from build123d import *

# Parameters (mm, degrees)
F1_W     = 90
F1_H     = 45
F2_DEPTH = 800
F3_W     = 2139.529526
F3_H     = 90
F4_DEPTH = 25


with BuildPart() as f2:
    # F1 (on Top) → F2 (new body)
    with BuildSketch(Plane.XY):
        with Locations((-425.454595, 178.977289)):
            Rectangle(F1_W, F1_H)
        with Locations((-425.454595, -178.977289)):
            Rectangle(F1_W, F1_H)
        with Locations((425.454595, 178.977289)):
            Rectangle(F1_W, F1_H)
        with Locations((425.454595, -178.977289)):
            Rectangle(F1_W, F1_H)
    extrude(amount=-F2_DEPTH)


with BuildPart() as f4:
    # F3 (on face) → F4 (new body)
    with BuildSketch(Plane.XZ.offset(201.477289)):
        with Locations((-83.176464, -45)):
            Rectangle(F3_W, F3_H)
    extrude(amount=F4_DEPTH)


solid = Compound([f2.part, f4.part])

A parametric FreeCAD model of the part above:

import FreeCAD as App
import Part
import Sketcher
from FreeCAD import Vector
Q = App.Units.Quantity


def add_polygon(sketch, points):
    """Adds a closed chain of lines whose ends are joined by coincident constraints."""
    first, n = sketch.GeometryCount, len(points)
    for a, b in zip(points, points[1:] + points[:1]):
        sketch.addGeometry(Part.LineSegment(App.Vector(*a, 0), App.Vector(*b, 0)), False)
    for i in range(n):
        sketch.addConstraint(Sketcher.Constraint("Coincident", first + i, 2, first + (i + 1) % n, 1))

doc = App.newDocument("Part")
body = doc.addObject("PartDesign::Body", "Body")
body.AllowCompound = True

sketch1 = body.newObject("Sketcher::SketchObject", "Sketch")
sketch1.AttachmentSupport = (doc.getObject("XY_Plane"), [""])
sketch1.MapMode = "FlatFace"
add_polygon(sketch1, [(-470, 201), (-470, 156), (-380, 156), (-380, 201)])
add_polygon(sketch1, [(-470, -156), (-470, -201), (-380, -201), (-380, -156)])
add_polygon(sketch1, [(380, 201), (380, 156), (470, 156), (470, 201)])
add_polygon(sketch1, [(380, -156), (380, -201), (470, -201), (470, -156)])
sketch1.addConstraint(Sketcher.Constraint("Vertical", 0))
sketch1.addConstraint(Sketcher.Constraint("Horizontal", 1))
sketch1.addConstraint(Sketcher.Constraint("Vertical", 2))
sketch1.addConstraint(Sketcher.Constraint("Horizontal", 3))
sketch1.addConstraint(Sketcher.Constraint("Vertical", 4))
sketch1.addConstraint(Sketcher.Constraint("Horizontal", 5))
sketch1.addConstraint(Sketcher.Constraint("Vertical", 6))
sketch1.addConstraint(Sketcher.Constraint("Horizontal", 7))
sketch1.addConstraint(Sketcher.Constraint("Vertical", 8))
sketch1.addConstraint(Sketcher.Constraint("Horizontal", 9))
sketch1.addConstraint(Sketcher.Constraint("Vertical", 10))
sketch1.addConstraint(Sketcher.Constraint("Horizontal", 11))
sketch1.addConstraint(Sketcher.Constraint("Vertical", 12))
sketch1.addConstraint(Sketcher.Constraint("Horizontal", 13))
sketch1.addConstraint(Sketcher.Constraint("Vertical", 14))
sketch1.addConstraint(Sketcher.Constraint("Horizontal", 15))
sketch1.addConstraint(Sketcher.Constraint("Symmetric", 6, 2, 8, 2, -1, 1))
sketch1.addConstraint(Sketcher.Constraint("Symmetric", 4, 2, 10, 2, -1, 1))
sketch1.addConstraint(Sketcher.Constraint("Symmetric", 2, 2, 12, 2, -1, 1))
sketch1.addConstraint(Sketcher.Constraint("Symmetric", 0, 2, 14, 2, -1, 1))
sketch1.addConstraint(Sketcher.Constraint("Symmetric", 1, 2, 8, 2, -2))
sketch1.addConstraint(Sketcher.Constraint("Symmetric", 3, 2, 10, 2, -2))
sketch1.addConstraint(Sketcher.Constraint("DistanceX", 1, 1, 1, 2, Q("90 mm")))
sketch1.addConstraint(Sketcher.Constraint("DistanceY", 0, 2, 0, 1, Q("45 mm")))
sketch1.addConstraint(Sketcher.Constraint("DistanceY", -1, 1, 0, 2, Q("156.477289 mm")))
sketch1.addConstraint(Sketcher.Constraint("DistanceX", 1, 2, 8, 2, Q("760.90919 mm")))
pad1 = body.newObject("PartDesign::Pad", "Pad")
pad1.Profile = sketch1
pad1.Length = 800
pad1.Reversed = True
body2 = doc.addObject("PartDesign::Body", "Body001")

sketch2 = body2.newObject("Sketcher::SketchObject", "Sketch001")
sketch2.AttachmentSupport = (doc.getObject("XZ_Plane001"), [""])
sketch2.MapMode = "FlatFace"
sketch2.AttachmentOffset = App.Placement(Vector(0, 0, 201.477289), App.Rotation())
add_polygon(sketch2, [(-1153, 0), (-1153, -90), (987, -90), (987, 0)])
sketch2.addConstraint(Sketcher.Constraint("Vertical", 0))
sketch2.addConstraint(Sketcher.Constraint("Horizontal", 1))
sketch2.addConstraint(Sketcher.Constraint("Vertical", 2))
sketch2.addConstraint(Sketcher.Constraint("Horizontal", 3))
sketch2.addConstraint(Sketcher.Constraint("PointOnObject", 2, 2, -1))
sketch2.addConstraint(Sketcher.Constraint("DistanceY", 0, 2, 0, 1, Q("90 mm")))
sketch2.addConstraint(Sketcher.Constraint("DistanceX", -1, 1, 1, 2, Q("986.588299 mm")))
sketch2.addConstraint(Sketcher.Constraint("DistanceX", 1, 1, 1, 2, Q("2139.529526 mm")))
pad2 = body2.newObject("PartDesign::Pad", "Pad001")
pad2.Profile = sketch2
pad2.Length = 25

doc.recompute()
